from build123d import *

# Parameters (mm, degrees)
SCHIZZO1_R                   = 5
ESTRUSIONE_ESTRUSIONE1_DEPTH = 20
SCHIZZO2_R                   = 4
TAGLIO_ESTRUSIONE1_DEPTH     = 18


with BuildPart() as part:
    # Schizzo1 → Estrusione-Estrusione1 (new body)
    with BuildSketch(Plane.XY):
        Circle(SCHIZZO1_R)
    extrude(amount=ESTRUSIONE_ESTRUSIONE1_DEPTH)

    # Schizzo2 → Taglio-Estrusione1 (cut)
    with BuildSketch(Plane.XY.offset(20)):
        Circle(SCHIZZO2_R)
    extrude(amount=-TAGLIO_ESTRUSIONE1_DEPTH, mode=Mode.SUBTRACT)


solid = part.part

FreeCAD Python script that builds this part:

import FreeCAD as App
import Part
import Sketcher

V = App.Vector

doc = App.newDocument("Part")
body = doc.addObject("PartDesign::Body", "Body")

# Sketch on XY plane
sketch1 = body.newObject("Sketcher::SketchObject", "Sketch")
sketch1.AttachmentSupport = (doc.getObject("XY_Plane"), [""])
sketch1.MapMode = "FlatFace"
sketch1.addGeometry(Part.Circle(V(0, 0, 0), V(0, 0, 1), 5), False)
sketch1.addConstraint([
    Sketcher.Constraint("Coincident", 0, 3, -1, 1),
    Sketcher.Constraint("Diameter", 0, 10.0),
])
pad1 = body.newObject("PartDesign::Pad", "Pad")
pad1.Profile = sketch1
pad1.Length = 20

# Sketch on XY plane
sketch2 = body.newObject("Sketcher::SketchObject", "Sketch001")
sketch2.AttachmentSupport = (doc.getObject("XY_Plane"), [""])
sketch2.MapMode = "FlatFace"
sketch2.AttachmentOffset = App.Placement(V(0, 0, 20), App.Rotation())
sketch2.addGeometry(Part.Circle(V(0, 0, 0), V(0, 0, 1), 4), False)
sketch2.addConstraint([
    Sketcher.Constraint("Coincident", 0, 3, -1, 1),
    Sketcher.Constraint("Diameter", 0, 8.0),
])
pocket1 = body.newObject("PartDesign::Pocket", "Pocket")
pocket1.Profile = sketch2
pocket1.Length = 18

doc.recompute()
